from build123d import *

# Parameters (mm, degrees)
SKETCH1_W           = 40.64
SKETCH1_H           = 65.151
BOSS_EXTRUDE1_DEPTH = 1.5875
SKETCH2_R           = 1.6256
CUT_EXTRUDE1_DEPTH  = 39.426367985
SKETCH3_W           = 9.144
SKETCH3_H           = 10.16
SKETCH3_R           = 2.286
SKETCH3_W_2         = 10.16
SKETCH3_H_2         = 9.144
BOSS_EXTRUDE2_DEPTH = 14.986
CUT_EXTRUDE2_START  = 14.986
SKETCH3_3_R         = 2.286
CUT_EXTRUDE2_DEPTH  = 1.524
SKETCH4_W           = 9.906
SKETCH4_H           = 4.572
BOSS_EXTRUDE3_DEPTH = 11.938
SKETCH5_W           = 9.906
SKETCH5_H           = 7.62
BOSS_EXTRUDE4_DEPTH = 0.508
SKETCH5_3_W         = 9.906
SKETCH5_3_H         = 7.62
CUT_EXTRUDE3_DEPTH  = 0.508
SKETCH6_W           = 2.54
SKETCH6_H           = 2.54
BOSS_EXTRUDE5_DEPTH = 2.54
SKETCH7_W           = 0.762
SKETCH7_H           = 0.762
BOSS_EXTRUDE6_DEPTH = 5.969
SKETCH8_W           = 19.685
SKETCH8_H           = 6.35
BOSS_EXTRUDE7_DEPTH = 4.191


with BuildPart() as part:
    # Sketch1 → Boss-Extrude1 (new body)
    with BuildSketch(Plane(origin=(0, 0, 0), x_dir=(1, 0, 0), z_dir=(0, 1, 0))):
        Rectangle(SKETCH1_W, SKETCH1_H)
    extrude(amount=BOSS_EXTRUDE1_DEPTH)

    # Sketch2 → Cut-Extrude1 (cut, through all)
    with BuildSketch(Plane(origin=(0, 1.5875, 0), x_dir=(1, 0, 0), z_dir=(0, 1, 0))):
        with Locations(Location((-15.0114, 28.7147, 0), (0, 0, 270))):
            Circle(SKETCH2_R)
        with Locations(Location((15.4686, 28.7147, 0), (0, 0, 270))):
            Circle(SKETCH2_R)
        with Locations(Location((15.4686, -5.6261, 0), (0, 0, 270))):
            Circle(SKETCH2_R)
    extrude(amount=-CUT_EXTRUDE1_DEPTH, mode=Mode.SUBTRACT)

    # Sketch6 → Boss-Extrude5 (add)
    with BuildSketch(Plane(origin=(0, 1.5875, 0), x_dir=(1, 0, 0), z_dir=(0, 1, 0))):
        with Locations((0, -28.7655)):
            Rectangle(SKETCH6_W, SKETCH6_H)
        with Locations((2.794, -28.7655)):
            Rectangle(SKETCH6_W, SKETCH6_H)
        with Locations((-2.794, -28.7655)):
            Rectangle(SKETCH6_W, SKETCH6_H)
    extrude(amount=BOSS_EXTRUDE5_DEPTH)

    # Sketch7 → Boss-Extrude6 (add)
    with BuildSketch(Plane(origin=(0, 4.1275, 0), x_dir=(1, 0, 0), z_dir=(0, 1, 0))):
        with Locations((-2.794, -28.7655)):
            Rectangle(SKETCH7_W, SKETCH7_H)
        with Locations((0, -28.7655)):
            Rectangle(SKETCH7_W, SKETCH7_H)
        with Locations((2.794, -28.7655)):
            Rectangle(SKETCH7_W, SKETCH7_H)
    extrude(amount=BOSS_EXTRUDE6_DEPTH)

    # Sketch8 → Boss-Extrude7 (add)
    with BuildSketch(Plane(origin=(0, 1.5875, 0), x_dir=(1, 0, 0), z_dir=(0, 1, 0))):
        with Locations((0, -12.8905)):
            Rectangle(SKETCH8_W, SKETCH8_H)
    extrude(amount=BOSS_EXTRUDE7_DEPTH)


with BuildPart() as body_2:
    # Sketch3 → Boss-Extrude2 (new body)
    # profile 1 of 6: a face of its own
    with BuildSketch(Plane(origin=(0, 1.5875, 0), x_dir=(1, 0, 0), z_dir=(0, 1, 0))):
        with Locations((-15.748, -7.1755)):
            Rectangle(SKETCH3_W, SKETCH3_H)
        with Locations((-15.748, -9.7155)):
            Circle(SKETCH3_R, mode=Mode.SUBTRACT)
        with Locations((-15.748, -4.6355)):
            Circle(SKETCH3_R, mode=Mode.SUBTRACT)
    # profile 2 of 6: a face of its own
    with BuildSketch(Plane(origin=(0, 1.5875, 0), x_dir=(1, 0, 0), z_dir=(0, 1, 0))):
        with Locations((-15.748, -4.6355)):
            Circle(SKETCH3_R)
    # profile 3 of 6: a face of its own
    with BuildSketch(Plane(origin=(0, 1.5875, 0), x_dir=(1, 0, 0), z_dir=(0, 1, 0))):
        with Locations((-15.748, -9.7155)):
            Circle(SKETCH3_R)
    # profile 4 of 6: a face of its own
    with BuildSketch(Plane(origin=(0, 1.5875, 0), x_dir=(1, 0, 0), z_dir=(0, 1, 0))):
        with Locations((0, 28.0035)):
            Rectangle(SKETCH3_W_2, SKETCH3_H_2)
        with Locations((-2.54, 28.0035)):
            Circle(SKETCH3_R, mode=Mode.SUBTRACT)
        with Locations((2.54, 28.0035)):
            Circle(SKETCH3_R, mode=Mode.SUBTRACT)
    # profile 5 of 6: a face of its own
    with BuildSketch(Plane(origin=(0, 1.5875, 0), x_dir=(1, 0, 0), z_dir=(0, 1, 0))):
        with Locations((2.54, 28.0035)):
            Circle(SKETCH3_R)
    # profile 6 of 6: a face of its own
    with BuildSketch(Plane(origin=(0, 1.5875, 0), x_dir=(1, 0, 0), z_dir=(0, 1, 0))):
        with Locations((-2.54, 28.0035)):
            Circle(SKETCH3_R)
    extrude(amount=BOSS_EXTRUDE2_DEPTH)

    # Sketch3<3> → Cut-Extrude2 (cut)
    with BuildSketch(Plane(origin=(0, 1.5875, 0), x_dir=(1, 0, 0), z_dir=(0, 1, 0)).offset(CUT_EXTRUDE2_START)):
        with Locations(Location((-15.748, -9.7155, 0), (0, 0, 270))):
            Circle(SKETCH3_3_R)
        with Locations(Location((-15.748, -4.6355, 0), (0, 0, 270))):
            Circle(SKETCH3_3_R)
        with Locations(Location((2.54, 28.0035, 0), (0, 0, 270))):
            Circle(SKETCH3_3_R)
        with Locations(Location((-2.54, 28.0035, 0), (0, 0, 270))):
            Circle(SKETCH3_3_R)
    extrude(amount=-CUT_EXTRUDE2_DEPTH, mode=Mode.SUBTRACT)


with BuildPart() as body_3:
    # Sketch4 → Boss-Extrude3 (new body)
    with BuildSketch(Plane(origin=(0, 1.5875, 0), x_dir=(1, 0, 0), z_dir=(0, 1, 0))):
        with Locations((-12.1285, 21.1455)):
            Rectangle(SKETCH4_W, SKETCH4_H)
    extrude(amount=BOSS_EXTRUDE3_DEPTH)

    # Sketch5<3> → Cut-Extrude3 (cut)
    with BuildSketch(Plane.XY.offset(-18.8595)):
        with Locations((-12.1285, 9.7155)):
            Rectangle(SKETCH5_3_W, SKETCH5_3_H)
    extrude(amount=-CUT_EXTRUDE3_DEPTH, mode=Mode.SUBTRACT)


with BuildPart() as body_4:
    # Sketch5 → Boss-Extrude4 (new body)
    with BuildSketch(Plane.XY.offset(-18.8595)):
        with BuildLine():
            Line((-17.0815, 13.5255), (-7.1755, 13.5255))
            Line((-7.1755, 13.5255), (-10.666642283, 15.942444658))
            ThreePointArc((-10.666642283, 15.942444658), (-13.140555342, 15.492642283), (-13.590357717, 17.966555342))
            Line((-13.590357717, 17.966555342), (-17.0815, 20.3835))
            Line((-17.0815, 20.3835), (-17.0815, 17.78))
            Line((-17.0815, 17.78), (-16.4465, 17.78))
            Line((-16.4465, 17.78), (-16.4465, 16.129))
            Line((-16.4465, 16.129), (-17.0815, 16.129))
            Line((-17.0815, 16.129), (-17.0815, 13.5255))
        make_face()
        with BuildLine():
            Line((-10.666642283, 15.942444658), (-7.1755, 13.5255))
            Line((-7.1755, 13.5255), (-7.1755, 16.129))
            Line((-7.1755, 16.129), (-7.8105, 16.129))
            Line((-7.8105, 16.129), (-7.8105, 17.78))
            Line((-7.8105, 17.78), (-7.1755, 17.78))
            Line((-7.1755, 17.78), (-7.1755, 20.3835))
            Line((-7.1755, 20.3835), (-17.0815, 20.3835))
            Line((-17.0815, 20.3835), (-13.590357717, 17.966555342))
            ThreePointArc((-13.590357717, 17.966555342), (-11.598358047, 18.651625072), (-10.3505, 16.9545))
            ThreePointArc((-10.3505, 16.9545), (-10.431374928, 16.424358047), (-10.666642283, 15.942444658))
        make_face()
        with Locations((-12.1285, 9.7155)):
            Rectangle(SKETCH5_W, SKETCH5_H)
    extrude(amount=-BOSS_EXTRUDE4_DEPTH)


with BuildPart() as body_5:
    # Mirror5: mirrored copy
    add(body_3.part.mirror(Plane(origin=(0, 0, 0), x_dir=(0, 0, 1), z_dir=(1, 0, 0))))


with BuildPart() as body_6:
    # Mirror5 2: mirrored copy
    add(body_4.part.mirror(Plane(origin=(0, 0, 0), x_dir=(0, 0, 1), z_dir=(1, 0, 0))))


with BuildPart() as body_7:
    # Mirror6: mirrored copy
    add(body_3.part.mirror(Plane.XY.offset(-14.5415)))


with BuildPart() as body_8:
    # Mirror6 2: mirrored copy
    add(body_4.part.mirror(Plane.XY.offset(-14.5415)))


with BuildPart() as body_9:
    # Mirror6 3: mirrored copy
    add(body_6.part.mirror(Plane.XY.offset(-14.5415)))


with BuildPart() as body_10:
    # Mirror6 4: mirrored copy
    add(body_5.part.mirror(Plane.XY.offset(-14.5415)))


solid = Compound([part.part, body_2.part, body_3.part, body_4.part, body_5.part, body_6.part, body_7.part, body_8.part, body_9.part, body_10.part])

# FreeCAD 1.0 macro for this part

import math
import FreeCAD as App
import Part
import Sketcher

V = App.Vector
Q = App.Units.Quantity

doc = App.newDocument("Part")
params = doc.addObject("Spreadsheet::Sheet", "Params")
for row, (alias, value) in enumerate([
    ("sketch1_width", "1.6 in"),
    ("sketch1_height", "2.565 in"),
    ("pad1_length", "0.0625 in"),
    ("sketch2_diameter", "0.128 in"),
    ("sketch3_width", "0.1 in"),
    ("pad2_length", "0.1 in"),
    ("sketch4_width", "0.03 in"),
    ("pad3_length", "0.235 in"),
    ("sketch5_height", "0.25 in"),
    ("sketch5_width", "0.775 in"),
    ("pad4_length", "0.165 in"),
    ("sketch6_width", "0.4 in"),
    ("sketch6_width2", "0.36 in"),
    ("pad5_length", "0.59 in"),
    ("sketch7_diameter", "0.18 in"),
    ("pocket2_length", "0.06 in"),
    ("sketch8_width", "0.39 in"),
    ("sketch8_height", "0.18 in"),
    ("pad6_length", "0.47 in"),
    ("sketch9_height", "0.3 in"),
    ("sketch9_width", "0.39 in"),
    ("pocket3_length", "0.02 in"),
    ("sketch10_radius", "0.07 in"),
    ("sketch10_width", "0.39 in"),
    ("sketch10_width2", "0.025 in"),
    ("sketch10_height", "0.065 in"),
    ("pad7_length", "0.02 in"),
], start=1):
    params.set(f"A{row}", alias)
    params.set(f"B{row}", "=" + value)
    params.setAlias(f"B{row}", alias)

body = doc.addObject("PartDesign::Body", "Body")

# Sketch on XZ plane
sketch1 = doc.addObject("Sketcher::SketchObject", "Sketch")
body.addObject(sketch1)
sketch1.AttachmentSupport = (doc.XZ_Plane, [""])
sketch1.MapMode = "FlatFace"
sketch1.addGeometry([
    Part.LineSegment(V(-20, -33, 0), V(-20, 33, 0)),
    Part.LineSegment(V(-20, 33, 0), V(20, 33, 0)),
    Part.LineSegment(V(20, 33, 0), V(20, -33, 0)),
    Part.LineSegment(V(20, -33, 0), V(-20, -33, 0)),
], False)
sketch1.addConstraint([
    Sketcher.Constraint("Coincident", 0, 2, 1, 1),
    Sketcher.Constraint("Coincident", 1, 2, 2, 1),
    Sketcher.Constraint("Coincident", 2, 2, 3, 1),
    Sketcher.Constraint("Coincident", 3, 2, 0, 1),
    Sketcher.Constraint("Vertical", 0),
    Sketcher.Constraint("Horizontal", 1),
    Sketcher.Constraint("Vertical", 2),
    Sketcher.Constraint("Horizontal", 3),
    Sketcher.Constraint("Symmetric", 0, 2, 2, 2, -1, 1),
    Sketcher.Constraint("DistanceX", 1, 1, 1, 2, Q("1.6 in")),
    Sketcher.Constraint("DistanceY", 0, 1, 0, 2, Q("2.565 in")),
])
sketch1.setExpression("Constraints[9]", "Params.sketch1_width")
sketch1.setExpression("Constraints[10]", "Params.sketch1_height")
pad1 = doc.addObject("PartDesign::Pad", "Pad")
body.addObject(pad1)
pad1.Profile = sketch1
pad1.setExpression("Length", "Params.pad1_length")
pad1.Reversed = True

# Sketch on XZ plane
sketch2 = doc.addObject("Sketcher::SketchObject", "Sketch001")
body.addObject(sketch2)
sketch2.AttachmentSupport = (doc.XZ_Plane, [""])
sketch2.MapMode = "FlatFace"
sketch2.AttachmentOffset = App.Placement(V(0, 0, -0.0625 * 25.4), App.Rotation())
sketch2.addGeometry([
    Part.Circle(V(-15, -28.7, 0), V(0, 0, 1), 1.6),
    Part.Circle(V(15.5, -28.7, 0), V(0, 0, 1), 1.6),
    Part.Circle(V(15.5, 5.6, 0), V(0, 0, 1), 1.6),
], False)
sketch2.addConstraint([
    Sketcher.Constraint("Equal", 0, 1),
    Sketcher.Constraint("Equal", 1, 2),
    Sketcher.Constraint("Horizontal", 0, 3, 1, 3),
    Sketcher.Constraint("Vertical", 1, 3, 2, 3),
    Sketcher.Constraint("Diameter", 0, Q("0.128 in")),
    Sketcher.Constraint("DistanceX", 0, 3, 1, 3, Q("1.2 in")),
    Sketcher.Constraint("DistanceX", 0, 3, -1, 1, Q("0.591 in")),
    Sketcher.Constraint("DistanceY", 1, 3, 2, 3, Q("1.352 in")),
    Sketcher.Constraint("DistanceY", 0, 3, -1, 1, Q("1.1305 in")),
])
sketch2.setExpression("Constraints[4]", "Params.sketch2_diameter")
pocket1 = doc.addObject("PartDesign::Pocket", "Pocket")
body.addObject(pocket1)
pocket1.Profile = sketch2
pocket1.Type = "ThroughAll"
pocket1.Reversed = True

# Sketch on XZ plane
sketch3 = doc.addObject("Sketcher::SketchObject", "Sketch002")
body.addObject(sketch3)
sketch3.AttachmentSupport = (doc.XZ_Plane, [""])
sketch3.MapMode = "FlatFace"
sketch3.AttachmentOffset = App.Placement(V(0, 0, -0.0625 * 25.4), App.Rotation())
sketch3.addGeometry([
    Part.LineSegment(V(-1.3, 27.5, 0), V(-1.3, 30, 0)),  # 0
    Part.LineSegment(V(-1.3, 30, 0), V(1.3, 30, 0)),  # 1
    Part.LineSegment(V(1.3, 30, 0), V(1.3, 27.5, 0)),  # 2
    Part.LineSegment(V(1.3, 27.5, 0), V(-1.3, 27.5, 0)),  # 3
    Part.LineSegment(V(1.5, 27.5, 0), V(1.5, 30, 0)),  # 4
    Part.LineSegment(V(1.5, 30, 0), V(4.1, 30, 0)),  # 5
    Part.LineSegment(V(4.1, 30, 0), V(4.1, 27.5, 0)),  # 6
    Part.LineSegment(V(4.1, 27.5, 0), V(1.5, 27.5, 0)),  # 7
    Part.LineSegment(V(-4.1, 27.5, 0), V(-4.1, 30, 0)),  # 8
    Part.LineSegment(V(-4.1, 30, 0), V(-1.5, 30, 0)),  # 9
    Part.LineSegment(V(-1.5, 30, 0), V(-1.5, 27.5, 0)),  # 10
    Part.LineSegment(V(-1.5, 27.5, 0), V(-4.1, 27.5, 0)),  # 11
], False)
sketch3.addConstraint([
    Sketcher.Constraint("Coincident", 0, 2, 1, 1),
    Sketcher.Constraint("Coincident", 1, 2, 2, 1),
    Sketcher.Constraint("Coincident", 2, 2, 3, 1),
    Sketcher.Constraint("Coincident", 3, 2, 0, 1),
    Sketcher.Constraint("Coincident", 4, 2, 5, 1),
    Sketcher.Constraint("Coincident", 5, 2, 6, 1),
    Sketcher.Constraint("Coincident", 6, 2, 7, 1),
    Sketcher.Constraint("Coincident", 7, 2, 4, 1),
    Sketcher.Constraint("Coincident", 8, 2, 9, 1),
    Sketcher.Constraint("Coincident", 9, 2, 10, 1),
    Sketcher.Constraint("Coincident", 10, 2, 11, 1),
    Sketcher.Constraint("Coincident", 11, 2, 8, 1),
    Sketcher.Constraint("Vertical", 0),
    Sketcher.Constraint("Horizontal", 1),
    Sketcher.Constraint("Vertical", 2),
    Sketcher.Constraint("Horizontal", 3),
    Sketcher.Constraint("Vertical", 4),
    Sketcher.Constraint("Horizontal", 5),
    Sketcher.Constraint("Vertical", 6),
    Sketcher.Constraint("Horizontal", 7),
    Sketcher.Constraint("Vertical", 8),
    Sketcher.Constraint("Horizontal", 9),
    Sketcher.Constraint("Vertical", 10),
    Sketcher.Constraint("Horizontal", 11),
    Sketcher.Constraint("Symmetric", 5, 2, 8, 2, -2),
    Sketcher.Constraint("Symmetric", 7, 2, 10, 2, -2),
    Sketcher.Constraint("Horizontal", 1, 2, 4, 2),
    Sketcher.Constraint("Horizontal", 3, 2, 6, 2),
    Sketcher.Constraint("Equal", 3, 5),
    Sketcher.Constraint("Equal", 11, 0),
    Sketcher.Constraint("DistanceX", 1, 1, 1, 2, Q("0.1 in")),
    Sketcher.Constraint("DistanceX", 0, 2, -1, 1, Q("0.05 in")),
    Sketcher.Constraint("DistanceX", -1, 1, 4, 2, Q("0.06 in")),
    Sketcher.Constraint("DistanceY", -1, 1, 0, 2, Q("1.1825 in")),
])
sketch3.setExpression("Constraints[30]", "Params.sketch3_width")
pad2 = doc.addObject("PartDesign::Pad", "Pad001")
body.addObject(pad2)
pad2.Profile = sketch3
pad2.setExpression("Length", "Params.pad2_length")
pad2.Reversed = True

# Sketch on XZ plane
sketch4 = doc.addObject("Sketcher::SketchObject", "Sketch003")
body.addObject(sketch4)
sketch4.AttachmentSupport = (doc.XZ_Plane, [""])
sketch4.MapMode = "FlatFace"
sketch4.AttachmentOffset = App.Placement(V(0, 0, -0.1625 * 25.4), App.Rotation())
sketch4.addGeometry([
    Part.LineSegment(V(-3.2, 28.4, 0), V(-3.2, 29.1, 0)),  # 0
    Part.LineSegment(V(-3.2, 29.1, 0), V(-2.4, 29.1, 0)),  # 1
    Part.LineSegment(V(-2.4, 29.1, 0), V(-2.4, 28.4, 0)),  # 2
    Part.LineSegment(V(-2.4, 28.4, 0), V(-3.2, 28.4, 0)),  # 3
    Part.LineSegment(V(-0.4, 28.4, 0), V(-0.4, 29.1, 0)),  # 4
    Part.LineSegment(V(-0.4, 29.1, 0), V(0.4, 29.1, 0)),  # 5
    Part.LineSegment(V(0.4, 29.1, 0), V(0.4, 28.4, 0)),  # 6
    Part.LineSegment(V(0.4, 28.4, 0), V(-0.4, 28.4, 0)),  # 7
    Part.LineSegment(V(2.4, 28.4, 0), V(2.4, 29.1, 0)),  # 8
    Part.LineSegment(V(2.4, 29.1, 0), V(3.2, 29.1, 0)),  # 9
    Part.LineSegment(V(3.2, 29.1, 0), V(3.2, 28.4, 0)),  # 10
    Part.LineSegment(V(3.2, 28.4, 0), V(2.4, 28.4, 0)),  # 11
], False)
sketch4.addConstraint([
    Sketcher.Constraint("Coincident", 0, 2, 1, 1),
    Sketcher.Constraint("Coincident", 1, 2, 2, 1),
    Sketcher.Constraint("Coincident", 2, 2, 3, 1),
    Sketcher.Constraint("Coincident", 3, 2, 0, 1),
    Sketcher.Constraint("Coincident", 4, 2, 5, 1),
    Sketcher.Constraint("Coincident", 5, 2, 6, 1),
    Sketcher.Constraint("Coincident", 6, 2, 7, 1),
    Sketcher.Constraint("Coincident", 7, 2, 4, 1),
    Sketcher.Constraint("Coincident", 8, 2, 9, 1),
    Sketcher.Constraint("Coincident", 9, 2, 10, 1),
    Sketcher.Constraint("Coincident", 10, 2, 11, 1),
    Sketcher.Constraint("Coincident", 11, 2, 8, 1),
    Sketcher.Constraint("Vertical", 0),
    Sketcher.Constraint("Horizontal", 1),
    Sketcher.Constraint("Vertical", 2),
    Sketcher.Constraint("Horizontal", 3),
    Sketcher.Constraint("Vertical", 4),
    Sketcher.Constraint("Horizontal", 5),
    Sketcher.Constraint("Vertical", 6),
    Sketcher.Constraint("Horizontal", 7),
    Sketcher.Constraint("Vertical", 8),
    Sketcher.Constraint("Horizontal", 9),
    Sketcher.Constraint("Vertical", 10),
    Sketcher.Constraint("Horizontal", 11),
    Sketcher.Constraint("Symmetric", 1, 2, 8, 2, -2),
    Sketcher.Constraint("Symmetric", 3, 2, 10, 2, -2),
    Sketcher.Constraint("Horizontal", 1, 2, 4, 2),
    Sketcher.Constraint("Horizontal", 3, 2, 6, 2),
    Sketcher.Constraint("Equal", 3, 5),
    Sketcher.Constraint("Equal", 11, 0),
    Sketcher.Constraint("DistanceX", 1, 1, 1, 2, Q("0.03 in")),
    Sketcher.Constraint("DistanceX", 1, 2, 4, 2, Q("0.08 in")),
    Sketcher.Constraint("DistanceX", 5, 2, 8, 2, Q("0.08 in")),
    Sketcher.Constraint("DistanceY", -1, 1, 0, 2, Q("1.1475 in")),
])
sketch4.setExpression("Constraints[30]", "Params.sketch4_width")
pad3 = doc.addObject("PartDesign::Pad", "Pad002")
body.addObject(pad3)
pad3.Profile = sketch4
pad3.setExpression("Length", "Params.pad3_length")
pad3.Reversed = True

# Sketch on XZ plane
sketch5 = doc.addObject("Sketcher::SketchObject", "Sketch004")
body.addObject(sketch5)
sketch5.AttachmentSupport = (doc.XZ_Plane, [""])
sketch5.MapMode = "FlatFace"
sketch5.AttachmentOffset = App.Placement(V(0, 0, -0.0625 * 25.4), App.Rotation())
sketch5.addGeometry([
    Part.LineSegment(V(-10, 10, 0), V(-10, 16, 0)),
    Part.LineSegment(V(-10, 16, 0), V(10, 16, 0)),
    Part.LineSegment(V(10, 16, 0), V(10, 10, 0)),
    Part.LineSegment(V(10, 10, 0), V(-10, 10, 0)),
], False)
sketch5.addConstraint([
    Sketcher.Constraint("Coincident", 0, 2, 1, 1),
    Sketcher.Constraint("Coincident", 1, 2, 2, 1),
    Sketcher.Constraint("Coincident", 2, 2, 3, 1),
    Sketcher.Constraint("Coincident", 3, 2, 0, 1),
    Sketcher.Constraint("Vertical", 0),
    Sketcher.Constraint("Horizontal", 1),
    Sketcher.Constraint("Vertical", 2),
    Sketcher.Constraint("Horizontal", 3),
    Sketcher.Constraint("DistanceY", 0, 1, 0, 2, Q("0.25 in")),
    Sketcher.Constraint("DistanceX", 1, 1, 1, 2, Q("0.775 in")),
    Sketcher.Constraint("DistanceX", 0, 2, -1, 1, Q("0.3875 in")),
    Sketcher.Constraint("DistanceY", -1, 1, 0, 2, Q("0.6325 in")),
])
sketch5.setExpression("Constraints[8]", "Params.sketch5_height")
sketch5.setExpression("Constraints[9]", "Params.sketch5_width")
pad4 = doc.addObject("PartDesign::Pad", "Pad003")
body.addObject(pad4)
pad4.Profile = sketch5
pad4.setExpression("Length", "Params.pad4_length")
pad4.Reversed = True
body2 = doc.addObject("PartDesign::Body", "Body001")
body2.AllowCompound = True

# Sketch on XZ plane
sketch6 = doc.addObject("Sketcher::SketchObject", "Sketch005")
body2.addObject(sketch6)
sketch6.AttachmentSupport = (doc.getObject("XZ_Plane001"), [""])
sketch6.MapMode = "FlatFace"
sketch6.AttachmentOffset = App.Placement(V(0, 0, -0.0625 * 25.4), App.Rotation())
sketch6.addGeometry([
    Part.LineSegment(V(-20, 2, 0), V(-20, 12, 0)),  # 0
    Part.LineSegment(V(-20, 12, 0), V(-11, 12, 0)),  # 1
    Part.LineSegment(V(-11, 12, 0), V(-11, 2, 0)),  # 2
    Part.LineSegment(V(-11, 2, 0), V(-20, 2, 0)),  # 3
    Part.LineSegment(V(-5, -33, 0), V(-5, -23, 0)),  # 4
    Part.LineSegment(V(-5, -23, 0), V(5, -23, 0)),  # 5
    Part.LineSegment(V(5, -23, 0), V(5, -33, 0)),  # 6
    Part.LineSegment(V(5, -33, 0), V(-5, -33, 0)),  # 7
], False)
sketch6.addConstraint([
    Sketcher.Constraint("Coincident", 0, 2, 1, 1),
    Sketcher.Constraint("Coincident", 1, 2, 2, 1),
    Sketcher.Constraint("Coincident", 2, 2, 3, 1),
    Sketcher.Constraint("Coincident", 3, 2, 0, 1),
    Sketcher.Constraint("Coincident", 4, 2, 5, 1),
    Sketcher.Constraint("Coincident", 5, 2, 6, 1),
    Sketcher.Constraint("Coincident", 6, 2, 7, 1),
    Sketcher.Constraint("Coincident", 7, 2, 4, 1),
    Sketcher.Constraint("Vertical", 0),
    Sketcher.Constraint("Horizontal", 1),
    Sketcher.Constraint("Vertical", 2),
    Sketcher.Constraint("Horizontal", 3),
    Sketcher.Constraint("Vertical", 4),
    Sketcher.Constraint("Horizontal", 5),
    Sketcher.Constraint("Vertical", 6),
    Sketcher.Constraint("Horizontal", 7),
    Sketcher.Constraint("Equal", 7, 0),
    Sketcher.Constraint("Equal", 3, 4),
    Sketcher.Constraint("DistanceX", 5, 1, 5, 2, Q("0.4 in")),
    Sketcher.Constraint("DistanceX", 3, 2, 5, 2, Q("1 in")),
    Sketcher.Constraint("DistanceX", 1, 1, 1, 2, Q("0.36 in")),
    Sketcher.Constraint("DistanceX", 0, 2, -1, 1, Q("0.8 in")),
    Sketcher.Constraint("DistanceY", 4, 2, 2, 2, Q("1.005 in")),
    Sketcher.Constraint("DistanceY", -1, 1, 0, 2, Q("0.4825 in")),
])
sketch6.setExpression("Constraints[18]", "Params.sketch6_width")
sketch6.setExpression("Constraints[20]", "Params.sketch6_width2")
pad5 = doc.addObject("PartDesign::Pad", "Pad004")
body2.addObject(pad5)
pad5.Profile = sketch6
pad5.setExpression("Length", "Params.pad5_length")
pad5.Reversed = True

# Sketch on XZ plane
sketch7 = doc.addObject("Sketcher::SketchObject", "Sketch006")
body2.addObject(sketch7)
sketch7.AttachmentSupport = (doc.getObject("XZ_Plane001"), [""])
sketch7.MapMode = "FlatFace"
sketch7.AttachmentOffset = App.Placement(V(0, 0, -0.6525 * 25.4), App.Rotation())
sketch7.addGeometry([
    Part.Circle(V(-15.7, 9.7, 0), V(0, 0, 1), 2.3),
    Part.Circle(V(-15.7, 4.6, 0), V(0, 0, 1), 2.3),
    Part.Circle(V(2.5, -28, 0), V(0, 0, 1), 2.3),
    Part.Circle(V(-2.5, -28, 0), V(0, 0, 1), 2.3),
], False)
sketch7.addConstraint([
    Sketcher.Constraint("Equal", 0, 1),
    Sketcher.Constraint("Equal", 1, 2),
    Sketcher.Constraint("Equal", 2, 3),
    Sketcher.Constraint("Symmetric", 2, 3, 3, 3, -2),
    Sketcher.Constraint("Vertical", 0, 3, 1, 3),
    Sketcher.Constraint("Diameter", 0, Q("0.18 in")),
    Sketcher.Constraint("DistanceX", -1, 1, 2, 3, Q("0.1 in")),
    Sketcher.Constraint("DistanceY", 1, 3, 0, 3, Q("0.2 in")),
    Sketcher.Constraint("DistanceX", 0, 3, -1, 1, Q("0.62 in")),
    Sketcher.Constraint("DistanceY", 2, 3, 1, 3, Q("1.285 in")),
    Sketcher.Constraint("DistanceY", -1, 1, 0, 3, Q("0.3825 in")),
])
sketch7.setExpression("Constraints[5]", "Params.sketch7_diameter")
pocket2 = doc.addObject("PartDesign::Pocket", "Pocket001")
body2.addObject(pocket2)
pocket2.Profile = sketch7
pocket2.setExpression("Length", "Params.pocket2_length")
pocket2.Reversed = True
body3 = doc.addObject("PartDesign::Body", "Body002")

# Sketch on XZ plane
sketch8 = doc.addObject("Sketcher::SketchObject", "Sketch007")
body3.addObject(sketch8)
sketch8.AttachmentSupport = (doc.getObject("XZ_Plane002"), [""])
sketch8.MapMode = "FlatFace"
sketch8.AttachmentOffset = App.Placement(V(0, 0, -0.0625 * 25.4), App.Rotation())
sketch8.addGeometry([
    Part.LineSegment(V(-17.1, -23.4, 0), V(-17.1, -18.9, 0)),
    Part.LineSegment(V(-17.1, -18.9, 0), V(-7.2, -18.9, 0)),
    Part.LineSegment(V(-7.2, -18.9, 0), V(-7.2, -23.4, 0)),
    Part.LineSegment(V(-7.2, -23.4, 0), V(-17.1, -23.4, 0)),
], False)
sketch8.addConstraint([
    Sketcher.Constraint("Coincident", 0, 2, 1, 1),
    Sketcher.Constraint("Coincident", 1, 2, 2, 1),
    Sketcher.Constraint("Coincident", 2, 2, 3, 1),
    Sketcher.Constraint("Coincident", 3, 2, 0, 1),
    Sketcher.Constraint("Vertical", 0),
    Sketcher.Constraint("Horizontal", 1),
    Sketcher.Constraint("Vertical", 2),
    Sketcher.Constraint("Horizontal", 3),
    Sketcher.Constraint("DistanceX", 1, 1, 1, 2, Q("0.39 in")),
    Sketcher.Constraint("DistanceY", 0, 1, 0, 2, Q("0.18 in")),
    Sketcher.Constraint("DistanceX", 0, 2, -1, 1, Q("0.6725 in")),
    Sketcher.Constraint("DistanceY", 0, 2, -1, 1, Q("0.7425 in")),
])
sketch8.setExpression("Constraints[8]", "Params.sketch8_width")
sketch8.setExpression("Constraints[9]", "Params.sketch8_height")
pad6 = doc.addObject("PartDesign::Pad", "Pad005")
body3.addObject(pad6)
pad6.Profile = sketch8
pad6.setExpression("Length", "Params.pad6_length")
pad6.Reversed = True

# Sketch on XY plane
sketch9 = doc.addObject("Sketcher::SketchObject", "Sketch008")
body3.addObject(sketch9)
sketch9.AttachmentSupport = (doc.getObject("XY_Plane002"), [""])
sketch9.MapMode = "FlatFace"
sketch9.AttachmentOffset = App.Placement(V(0, 0, -0.7425 * 25.4), App.Rotation())
sketch9.addGeometry([
    Part.LineSegment(V(-17, 14, 0), V(-17, 6, 0)),
    Part.LineSegment(V(-17, 6, 0), V(-7, 6, 0)),
    Part.LineSegment(V(-7, 6, 0), V(-7, 14, 0)),
    Part.LineSegment(V(-7, 14, 0), V(-17, 14, 0)),
], False)
sketch9.addConstraint([
    Sketcher.Constraint("Coincident", 0, 2, 1, 1),
    Sketcher.Constraint("Coincident", 1, 2, 2, 1),
    Sketcher.Constraint("Coincident", 2, 2, 3, 1),
    Sketcher.Constraint("Coincident", 3, 2, 0, 1),
    Sketcher.Constraint("Vertical", 0),
    Sketcher.Constraint("Horizontal", 1),
    Sketcher.Constraint("Vertical", 2),
    Sketcher.Constraint("Horizontal", 3),
    Sketcher.Constraint("DistanceY", 0, 2, 0, 1, Q("0.3 in")),
    Sketcher.Constraint("DistanceX", 1, 1, 1, 2, Q("0.39 in")),
    Sketcher.Constraint("DistanceX", 0, 2, -1, 1, Q("0.6725 in")),
    Sketcher.Constraint("DistanceY", -1, 1, 0, 2, Q("0.2325 in")),
])
sketch9.setExpression("Constraints[8]", "Params.sketch9_height")
sketch9.setExpression("Constraints[9]", "Params.sketch9_width")
pocket3 = doc.addObject("PartDesign::Pocket", "Pocket002")
body3.addObject(pocket3)
pocket3.Profile = sketch9
pocket3.setExpression("Length", "Params.pocket3_length")
body4 = doc.addObject("PartDesign::Body", "Body003")

# Sketch on XY plane
sketch10 = doc.addObject("Sketcher::SketchObject", "Sketch009")
body4.addObject(sketch10)
sketch10.AttachmentSupport = (doc.getObject("XY_Plane003"), [""])
sketch10.MapMode = "FlatFace"
sketch10.AttachmentOffset = App.Placement(V(0, 0, -0.7425 * 25.4), App.Rotation())
sketch10.addGeometry([
    Part.LineSegment(V(-7.2, 16.1, 0), V(-7.8, 16.1, 0)),  # 0
    Part.LineSegment(V(-7.8, 16.1, 0), V(-7.8, 17.8, 0)),  # 1
    Part.LineSegment(V(-7.8, 17.8, 0), V(-7.2, 17.8, 0)),  # 2
    Part.LineSegment(V(-7.2, 17.8, 0), V(-7.2, 20.4, 0)),  # 3
    Part.LineSegment(V(-7.2, 20.4, 0), V(-17.1, 20.4, 0)),  # 4
    Part.LineSegment(V(-17.1, 20.4, 0), V(-17.1, 17.8, 0)),  # 5
    Part.LineSegment(V(-17.1, 17.8, 0), V(-16.4, 17.8, 0)),  # 6
    Part.LineSegment(V(-16.4, 17.8, 0), V(-16.4, 16.1, 0)),  # 7
    Part.LineSegment(V(-16.4, 16.1, 0), V(-17.1, 16.1, 0)),  # 8
    Part.LineSegment(V(-17.1, 16.1, 0), V(-17.1, 5.9, 0)),  # 9
    Part.LineSegment(V(-17.1, 5.9, 0), V(-7.2, 5.9, 0)),  # 10
    Part.LineSegment(V(-7.2, 5.9, 0), V(-7.2, 16.1, 0)),  # 11
    Part.ArcOfCircle(Part.Circle(V(-12.1, 17, 0), V(0, 0, 1), 1.8), math.radians(145), math.radians(325)),  # 12
    Part.ArcOfCircle(Part.Circle(V(-12.1, 17, 0), V(0, 0, 1), 1.8), math.radians(0), math.radians(145)),  # 13
    Part.ArcOfCircle(Part.Circle(V(-12.1, 17, 0), V(0, 0, 1), 1.8), math.radians(-35), math.radians(0)),  # 14
], False)
sketch10.addConstraint([
    Sketcher.Constraint("Coincident", 0, 2, 1, 1),
    Sketcher.Constraint("Coincident", 1, 2, 2, 1),
    Sketcher.Constraint("Coincident", 2, 2, 3, 1),
    Sketcher.Constraint("Coincident", 3, 2, 4, 1),
    Sketcher.Constraint("Coincident", 4, 2, 5, 1),
    Sketcher.Constraint("Coincident", 5, 2, 6, 1),
    Sketcher.Constraint("Coincident", 6, 2, 7, 1),
    Sketcher.Constraint("Coincident", 7, 2, 8, 1),
    Sketcher.Constraint("Coincident", 8, 2, 9, 1),
    Sketcher.Constraint("Coincident", 9, 2, 10, 1),
    Sketcher.Constraint("Coincident", 10, 2, 11, 1),
    Sketcher.Constraint("Coincident", 11, 2, 0, 1),
    Sketcher.Constraint("Tangent", 12, 1, 13, 2),
    Sketcher.Constraint("Tangent", 13, 1, 14, 2),
    Sketcher.Constraint("Tangent", 14, 1, 12, 2),
    Sketcher.Constraint("Horizontal", 0),
    Sketcher.Constraint("Vertical", 1),
    Sketcher.Constraint("Horizontal", 2),
    Sketcher.Constraint("Vertical", 3),
    Sketcher.Constraint("Horizontal", 4),
    Sketcher.Constraint("Vertical", 5),
    Sketcher.Constraint("Horizontal", 6),
    Sketcher.Constraint("Vertical", 7),
    Sketcher.Constraint("Horizontal", 8),
    Sketcher.Constraint("Vertical", 9),
    Sketcher.Constraint("Horizontal", 10),
    Sketcher.Constraint("Vertical", 11),
    Sketcher.Constraint("Horizontal", 2, 2, 5, 2),
    Sketcher.Constraint("Horizontal", 0, 2, 7, 2),
    Sketcher.Constraint("Horizontal", 14, 3, 13, 1),
    Sketcher.Constraint("Vertical", 5, 2, 8, 2),
    Sketcher.Constraint("Vertical", 3, 2, 10, 2),
    Sketcher.Constraint("Equal", 2, 6),
    Sketcher.Constraint("Radius", 12, Q("0.07 in")),
    Sketcher.Constraint("DistanceX", 4, 2, 4, 1, Q("0.39 in")),
    Sketcher.Constraint("DistanceY", -1, 1, 1, 2, Q("0.7 in")),
    Sketcher.Constraint("DistanceX", 13, 1, 0, 2, Q("0.1 in")),
    Sketcher.Constraint("DistanceX", 0, 2, 0, 1, Q("0.025 in")),
    Sketcher.Constraint("DistanceY", 1, 1, 1, 2, Q("0.065 in")),
    Sketcher.Constraint("DistanceY", 3, 1, 3, 2, Q("0.1025 in")),
    Sketcher.Constraint("DistanceY", 9, 2, 9, 1, Q("0.4025 in")),
    Sketcher.Constraint("DistanceY", 14, 3, 3, 2, Q("0.135 in")),
    Sketcher.Constraint("DistanceX", 12, 3, -1, 1, Q("0.4775 in")),
    Sketcher.Constraint("DistanceX", 12, 1, -1, 1, Q("13.590358 mm")),
    Sketcher.Constraint("DistanceX", 14, 1, -1, 1, Q("10.666642 mm")),
])
sketch10.setExpression("Constraints[33]", "Params.sketch10_radius")
sketch10.setExpression("Constraints[34]", "Params.sketch10_width")
sketch10.setExpression("Constraints[37]", "Params.sketch10_width2")
sketch10.setExpression("Constraints[38]", "Params.sketch10_height")
pad7 = doc.addObject("PartDesign::Pad", "Pad006")
body4.addObject(pad7)
pad7.Profile = sketch10
pad7.setExpression("Length", "Params.pad7_length")
pad7.Reversed = True
body5 = doc.addObject("PartDesign::Body", "Body004")
doc.recompute()

mirroring = doc.addObject("Part::Mirroring", "Mirroring")
mirroring.Source = body3
mirroring.Base = V(0, 0, 0)
mirroring.Normal = V(1, 0, 0)
body5.BaseFeature = mirroring
doc.recompute()
body6 = doc.addObject("PartDesign::Body", "Body005")
doc.recompute()

mirroring2 = doc.addObject("Part::Mirroring", "Mirroring001")
mirroring2.Source = body4
mirroring2.Base = V(0, 0, 0)
mirroring2.Normal = V(1, 0, 0)
body6.BaseFeature = mirroring2
doc.recompute()
body7 = doc.addObject("PartDesign::Body", "Body006")
doc.recompute()

mirroring3 = doc.addObject("Part::Mirroring", "Mirroring002")
mirroring3.Source = body3
mirroring3.Base = V(0, 0, -14.5415)
mirroring3.Normal = V(0, 0, 1)
body7.BaseFeature = mirroring3
doc.recompute()
body8 = doc.addObject("PartDesign::Body", "Body007")
doc.recompute()

mirroring4 = doc.addObject("Part::Mirroring", "Mirroring003")
mirroring4.Source = body4
mirroring4.Base = V(0, 0, -14.5415)
mirroring4.Normal = V(0, 0, 1)
body8.BaseFeature = mirroring4
doc.recompute()
body9 = doc.addObject("PartDesign::Body", "Body008")
doc.recompute()

mirroring5 = doc.addObject("Part::Mirroring", "Mirroring004")
mirroring5.Source = body6
mirroring5.Base = V(0, 0, -14.5415)
mirroring5.Normal = V(0, 0, 1)
body9.BaseFeature = mirroring5
doc.recompute()
body10 = doc.addObject("PartDesign::Body", "Body009")
doc.recompute()

mirroring6 = doc.addObject("Part::Mirroring", "Mirroring005")
mirroring6.Source = body5
mirroring6.Base = V(0, 0, -14.5415)
mirroring6.Normal = V(0, 0, 1)
body10.BaseFeature = mirroring6
doc.recompute()
mirroring.Visibility = False
mirroring2.Visibility = False
mirroring3.Visibility = False
mirroring4.Visibility = False
mirroring5.Visibility = False
mirroring6.Visibility = False

doc.recompute()
